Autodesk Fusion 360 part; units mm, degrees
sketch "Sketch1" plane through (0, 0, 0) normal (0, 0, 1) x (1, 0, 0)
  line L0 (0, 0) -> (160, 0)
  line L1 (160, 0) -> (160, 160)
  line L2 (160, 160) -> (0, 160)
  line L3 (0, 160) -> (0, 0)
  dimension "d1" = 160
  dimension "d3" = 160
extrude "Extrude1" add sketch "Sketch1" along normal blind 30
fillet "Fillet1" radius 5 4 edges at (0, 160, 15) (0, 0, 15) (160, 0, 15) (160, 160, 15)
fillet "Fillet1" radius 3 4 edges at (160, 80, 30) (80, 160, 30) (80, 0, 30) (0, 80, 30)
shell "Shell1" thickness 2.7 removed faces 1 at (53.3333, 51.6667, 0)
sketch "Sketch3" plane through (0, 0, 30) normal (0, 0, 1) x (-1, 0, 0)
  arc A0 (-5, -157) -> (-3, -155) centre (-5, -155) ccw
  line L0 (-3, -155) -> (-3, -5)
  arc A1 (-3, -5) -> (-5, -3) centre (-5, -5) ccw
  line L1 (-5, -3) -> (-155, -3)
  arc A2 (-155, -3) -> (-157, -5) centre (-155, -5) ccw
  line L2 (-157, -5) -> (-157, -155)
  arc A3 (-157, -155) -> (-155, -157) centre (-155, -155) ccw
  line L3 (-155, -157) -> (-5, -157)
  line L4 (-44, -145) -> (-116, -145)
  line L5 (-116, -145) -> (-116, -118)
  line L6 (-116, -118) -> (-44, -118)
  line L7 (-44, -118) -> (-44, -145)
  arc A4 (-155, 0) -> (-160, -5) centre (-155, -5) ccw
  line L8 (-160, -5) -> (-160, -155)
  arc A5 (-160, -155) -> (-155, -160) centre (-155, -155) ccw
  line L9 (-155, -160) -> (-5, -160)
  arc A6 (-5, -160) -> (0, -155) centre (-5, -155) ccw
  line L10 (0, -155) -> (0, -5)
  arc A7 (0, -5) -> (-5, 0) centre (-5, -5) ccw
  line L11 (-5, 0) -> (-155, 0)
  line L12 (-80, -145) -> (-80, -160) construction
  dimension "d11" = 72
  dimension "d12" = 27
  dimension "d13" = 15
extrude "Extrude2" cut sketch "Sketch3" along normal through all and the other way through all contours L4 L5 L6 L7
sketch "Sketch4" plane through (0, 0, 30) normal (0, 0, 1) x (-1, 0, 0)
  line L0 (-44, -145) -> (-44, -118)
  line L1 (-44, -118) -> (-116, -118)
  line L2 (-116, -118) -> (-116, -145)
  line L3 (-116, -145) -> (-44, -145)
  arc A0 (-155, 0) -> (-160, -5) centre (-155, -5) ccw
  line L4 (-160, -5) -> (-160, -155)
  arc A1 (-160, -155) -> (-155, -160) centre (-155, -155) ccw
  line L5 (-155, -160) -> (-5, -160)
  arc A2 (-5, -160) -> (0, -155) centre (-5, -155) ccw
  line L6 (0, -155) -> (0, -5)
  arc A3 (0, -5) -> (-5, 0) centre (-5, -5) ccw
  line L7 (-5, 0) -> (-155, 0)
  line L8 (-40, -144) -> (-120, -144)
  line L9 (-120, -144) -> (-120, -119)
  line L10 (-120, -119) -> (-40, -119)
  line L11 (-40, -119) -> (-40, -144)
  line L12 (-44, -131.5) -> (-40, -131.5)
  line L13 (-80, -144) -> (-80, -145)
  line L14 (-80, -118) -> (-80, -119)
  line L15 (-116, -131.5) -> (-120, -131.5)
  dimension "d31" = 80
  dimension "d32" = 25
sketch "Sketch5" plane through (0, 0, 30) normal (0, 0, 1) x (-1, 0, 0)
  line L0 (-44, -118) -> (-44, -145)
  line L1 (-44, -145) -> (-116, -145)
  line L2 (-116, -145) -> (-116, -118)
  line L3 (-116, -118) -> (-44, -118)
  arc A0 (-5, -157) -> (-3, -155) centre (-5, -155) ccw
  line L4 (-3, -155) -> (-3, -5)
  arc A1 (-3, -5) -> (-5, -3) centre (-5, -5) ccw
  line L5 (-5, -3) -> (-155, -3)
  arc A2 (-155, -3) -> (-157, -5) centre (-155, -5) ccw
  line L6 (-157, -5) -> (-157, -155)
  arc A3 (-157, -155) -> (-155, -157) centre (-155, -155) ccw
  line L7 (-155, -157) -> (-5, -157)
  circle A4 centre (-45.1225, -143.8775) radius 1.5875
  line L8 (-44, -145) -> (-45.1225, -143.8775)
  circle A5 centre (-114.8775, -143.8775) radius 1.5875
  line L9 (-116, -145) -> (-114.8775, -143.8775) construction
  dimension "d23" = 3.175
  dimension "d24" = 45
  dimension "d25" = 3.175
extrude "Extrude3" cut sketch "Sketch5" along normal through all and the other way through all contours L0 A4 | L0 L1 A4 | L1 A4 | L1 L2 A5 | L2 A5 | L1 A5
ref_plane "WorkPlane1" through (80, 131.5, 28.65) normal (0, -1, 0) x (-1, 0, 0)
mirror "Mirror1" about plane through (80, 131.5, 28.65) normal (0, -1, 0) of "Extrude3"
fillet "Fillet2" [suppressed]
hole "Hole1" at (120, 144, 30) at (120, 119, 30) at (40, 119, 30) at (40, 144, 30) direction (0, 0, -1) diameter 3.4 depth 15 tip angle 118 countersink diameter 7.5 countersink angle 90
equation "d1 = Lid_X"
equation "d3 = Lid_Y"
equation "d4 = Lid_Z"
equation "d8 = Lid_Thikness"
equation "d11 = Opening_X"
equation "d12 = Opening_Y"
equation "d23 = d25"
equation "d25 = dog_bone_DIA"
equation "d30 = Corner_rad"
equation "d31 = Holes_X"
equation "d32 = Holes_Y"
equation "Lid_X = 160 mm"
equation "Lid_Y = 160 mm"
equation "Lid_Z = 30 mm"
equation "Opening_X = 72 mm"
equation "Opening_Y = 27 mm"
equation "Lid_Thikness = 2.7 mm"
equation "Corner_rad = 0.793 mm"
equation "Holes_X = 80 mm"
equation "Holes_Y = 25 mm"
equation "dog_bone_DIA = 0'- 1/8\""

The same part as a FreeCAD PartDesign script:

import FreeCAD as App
import Part
import Sketcher

V = App.Vector
Q = App.Units.Quantity


def edges_at(feature, points):
    """Names of the edges that pass closest to the given points."""
    edges = feature.Shape.Edges
    near = lambda p: min(range(len(edges)), key=lambda i: edges[i].distToShape(Part.Vertex(*p))[0])
    return sorted({f"Edge{near(p) + 1}" for p in points})


def faces_at(feature, points):
    """Names of the faces that lie closest to the given points."""
    faces = feature.Shape.Faces
    near = lambda p: min(range(len(faces)), key=lambda i: faces[i].distToShape(Part.Vertex(*p))[0])
    return sorted({f"Face{near(p) + 1}" for p in points})

doc = App.newDocument("Part")
body = doc.addObject("PartDesign::Body", "Body")

# Sketch on XY plane
sketch1 = body.newObject("Sketcher::SketchObject", "Sketch")
sketch1.AttachmentSupport = (doc.getObject("XY_Plane"), [""])
sketch1.MapMode = "FlatFace"
sketch1.addGeometry(Part.LineSegment(V(0, 160, 0), V(0, 0, 0)), False)
sketch1.addGeometry(Part.LineSegment(V(0, 0, 0), V(160, 0, 0)), False)
sketch1.addGeometry(Part.LineSegment(V(160, 0, 0), V(160, 160, 0)), False)
sketch1.addGeometry(Part.LineSegment(V(160, 160, 0), V(0, 160, 0)), False)
sketch1.addConstraint(Sketcher.Constraint("Coincident", 0, 2, 1, 1))
sketch1.addConstraint(Sketcher.Constraint("Coincident", 1, 2, 2, 1))
sketch1.addConstraint(Sketcher.Constraint("Coincident", 2, 2, 3, 1))
sketch1.addConstraint(Sketcher.Constraint("Coincident", 3, 2, 0, 1))
sketch1.addConstraint(Sketcher.Constraint("Vertical", 0))
sketch1.addConstraint(Sketcher.Constraint("Horizontal", 1))
sketch1.addConstraint(Sketcher.Constraint("Vertical", 2))
sketch1.addConstraint(Sketcher.Constraint("Horizontal", 3))
sketch1.addConstraint(Sketcher.Constraint("Coincident", 0, 2, -1, 1))
sketch1.addConstraint(Sketcher.Constraint("Equal", 3, 0))
sketch1.addConstraint(Sketcher.Constraint("DistanceX", 1, 1, 1, 2, Q("160 mm")))
pad1 = body.newObject("PartDesign::Pad", "Pad")
pad1.Profile = sketch1
pad1.Length = 30
doc.recompute()

fillet = body.newObject("PartDesign::Fillet", "Fillet")
fillet.Base = (pad1, edges_at(pad1, [
    (0, 160, 15),
    (0, 0, 15),
    (160, 0, 15),
    (160, 160, 15),
]))
fillet.Radius = 5
doc.recompute()

fillet2 = body.newObject("PartDesign::Fillet", "Fillet001")
fillet2.Base = (fillet, edges_at(fillet, [
    (160, 80, 30),
    (80, 160, 30),
    (80, 0, 30),
    (0, 80, 30),
]))
fillet2.Radius = 3
doc.recompute()

thickness = body.newObject("PartDesign::Thickness", "Thickness")
thickness.Base = (fillet2, faces_at(fillet2, [(53.333, 51.667, 0)]))
thickness.Value = 2.7
thickness.Reversed = True
thickness.Join = "Intersection"

# Sketch on XY plane
sketch2 = body.newObject("Sketcher::SketchObject", "Sketch001")
sketch2.AttachmentSupport = (doc.getObject("XY_Plane"), [""])
sketch2.MapMode = "FlatFace"
sketch2.AttachmentOffset = App.Placement(V(0, 0, 30), App.Rotation())
sketch2.addGeometry(Part.LineSegment(V(116, 145, 0), V(44, 145, 0)), False)
sketch2.addGeometry(Part.LineSegment(V(44, 145, 0), V(44, 118, 0)), False)
sketch2.addGeometry(Part.LineSegment(V(44, 118, 0), V(116, 118, 0)), False)
sketch2.addGeometry(Part.LineSegment(V(116, 118, 0), V(116, 145, 0)), False)
sketch2.addConstraint(Sketcher.Constraint("Coincident", 0, 2, 1, 1))
sketch2.addConstraint(Sketcher.Constraint("Coincident", 1, 2, 2, 1))
sketch2.addConstraint(Sketcher.Constraint("Coincident", 2, 2, 3, 1))
sketch2.addConstraint(Sketcher.Constraint("Coincident", 3, 2, 0, 1))
sketch2.addConstraint(Sketcher.Constraint("Horizontal", 0))
sketch2.addConstraint(Sketcher.Constraint("Vertical", 1))
sketch2.addConstraint(Sketcher.Constraint("Horizontal", 2))
sketch2.addConstraint(Sketcher.Constraint("Vertical", 3))
sketch2.addConstraint(Sketcher.Constraint("DistanceX", 0, 2, 0, 1, Q("72 mm")))
sketch2.addConstraint(Sketcher.Constraint("DistanceY", 1, 2, 1, 1, Q("27 mm")))
sketch2.addConstraint(Sketcher.Constraint("DistanceX", -1, 1, 0, 2, Q("44 mm")))
sketch2.addConstraint(Sketcher.Constraint("DistanceY", -1, 1, 0, 2, Q("145 mm")))
pocket1 = body.newObject("PartDesign::Pocket", "Pocket")
pocket1.Profile = sketch2
pocket1.Type = "ThroughAll"
pocket1.Midplane = True

# Sketch on XY plane
sketch3 = body.newObject("Sketcher::SketchObject", "Sketch002")
sketch3.AttachmentSupport = (doc.getObject("XY_Plane"), [""])
sketch3.MapMode = "FlatFace"
sketch3.AttachmentOffset = App.Placement(V(0, 0, 30), App.Rotation())
sketch3.addGeometry(Part.Circle(V(45.1, 143.9, 0), V(0, 0, 1), 1.6), False)
sketch3.addGeometry(Part.Circle(V(114.9, 143.9, 0), V(0, 0, 1), 1.6), False)
sketch3.addConstraint(Sketcher.Constraint("Equal", 0, 1))
sketch3.addConstraint(Sketcher.Constraint("Horizontal", 0, 3, 1, 3))
sketch3.addConstraint(Sketcher.Constraint("Diameter", 0, Q("3.175 mm")))
sketch3.addConstraint(Sketcher.Constraint("DistanceX", 0, 3, 1, 3, Q("69.755 mm")))
sketch3.addConstraint(Sketcher.Constraint("DistanceX", -1, 1, 0, 3, Q("45.1225 mm")))
sketch3.addConstraint(Sketcher.Constraint("DistanceY", -1, 1, 0, 3, Q("143.8775 mm")))
pocket2 = body.newObject("PartDesign::Pocket", "Pocket001")
pocket2.Profile = sketch3
pocket2.Type = "ThroughAll"
pocket2.Midplane = True
doc.recompute()

datumplane = body.newObject("PartDesign::Plane", "DatumPlane")
datumplane.AttachmentSupport = (doc.getObject("XZ_Plane"), [""])
datumplane.MapMode = "FlatFace"
datumplane.AttachmentOffset = App.Placement(V(0, 0, -131.5), App.Rotation())
mirrored = body.newObject("PartDesign::Mirrored", "Mirrored")
mirrored.Originals = [pocket2]
mirrored.MirrorPlane = (datumplane, [""])
body.Tip = mirrored

# Sketch on XY plane
sketch4 = body.newObject("Sketcher::SketchObject", "Sketch003")
sketch4.AttachmentSupport = (doc.getObject("XY_Plane"), [""])
sketch4.MapMode = "FlatFace"
sketch4.AttachmentOffset = App.Placement(V(0, 0, 30), App.Rotation())
sketch4.addGeometry(Part.Circle(V(120, 144, 0), V(0, 0, 1), 1.7), False)
sketch4.addGeometry(Part.Circle(V(120, 119, 0), V(0, 0, 1), 1.7), False)
sketch4.addGeometry(Part.Circle(V(40, 119, 0), V(0, 0, 1), 1.7), False)
sketch4.addGeometry(Part.Circle(V(40, 144, 0), V(0, 0, 1), 1.7), False)
sketch4.addConstraint(Sketcher.Constraint("Equal", 0, 1))
sketch4.addConstraint(Sketcher.Constraint("Equal", 1, 2))
sketch4.addConstraint(Sketcher.Constraint("Equal", 2, 3))
sketch4.addConstraint(Sketcher.Constraint("Horizontal", 1, 3, 2, 3))
sketch4.addConstraint(Sketcher.Constraint("Horizontal", 0, 3, 3, 3))
sketch4.addConstraint(Sketcher.Constraint("Vertical", 0, 3, 1, 3))
sketch4.addConstraint(Sketcher.Constraint("Vertical", 2, 3, 3, 3))
sketch4.addConstraint(Sketcher.Constraint("Diameter", 0, Q("3.4 mm")))
sketch4.addConstraint(Sketcher.Constraint("DistanceX", -1, 1, 0, 3, Q("120 mm")))
sketch4.addConstraint(Sketcher.Constraint("DistanceY", -1, 1, 0, 3, Q("144 mm")))
sketch4.addConstraint(Sketcher.Constraint("DistanceY", -1, 1, 1, 3, Q("119 mm")))
sketch4.addConstraint(Sketcher.Constraint("DistanceX", -1, 1, 2, 3, Q("40 mm")))
doc.recompute()
hole = body.newObject("PartDesign::Hole", "Hole")
hole.Profile = sketch4
hole.ThreadType = "None"
hole.Diameter = 3.4
hole.DepthType = "Dimension"
hole.Depth = 15
hole.DrillPoint = "Angled"
hole.DrillPointAngle = 118
hole.HoleCutType = "Countersink"
hole.HoleCutDiameter = 7.5
hole.HoleCutCountersinkAngle = 90

doc.recompute()
